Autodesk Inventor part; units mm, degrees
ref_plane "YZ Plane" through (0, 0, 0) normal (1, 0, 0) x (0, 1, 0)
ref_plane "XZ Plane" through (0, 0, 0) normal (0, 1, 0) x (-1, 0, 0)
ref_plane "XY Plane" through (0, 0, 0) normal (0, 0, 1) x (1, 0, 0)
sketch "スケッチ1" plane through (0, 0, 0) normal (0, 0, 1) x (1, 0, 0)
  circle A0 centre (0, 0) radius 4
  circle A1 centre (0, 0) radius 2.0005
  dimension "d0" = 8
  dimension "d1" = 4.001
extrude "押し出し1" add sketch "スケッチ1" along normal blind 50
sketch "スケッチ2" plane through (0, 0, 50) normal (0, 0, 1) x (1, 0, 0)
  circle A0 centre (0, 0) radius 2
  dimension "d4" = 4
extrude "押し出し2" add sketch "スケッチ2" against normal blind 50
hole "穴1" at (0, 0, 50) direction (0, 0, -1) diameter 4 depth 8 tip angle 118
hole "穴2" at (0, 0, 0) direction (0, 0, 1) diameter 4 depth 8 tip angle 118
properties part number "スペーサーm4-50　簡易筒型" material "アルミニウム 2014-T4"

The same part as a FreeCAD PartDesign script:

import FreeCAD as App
import Part
import Sketcher

V = App.Vector

doc = App.newDocument("Part")
body = doc.addObject("PartDesign::Body", "Body")
body.AllowCompound = True

sketch1 = doc.addObject("Sketcher::SketchObject", "Sketch")
body.addObject(sketch1)
sketch1.AttachmentSupport = (doc.XY_Plane, [""])
sketch1.MapMode = "FlatFace"
sketch1.addGeometry(Part.Circle(V(0, 0, 0), V(0, 0, 1), 4), False)
sketch1.addGeometry(Part.Circle(V(0, 0, 0), V(0, 0, 1), 2), False)
sketch1.addConstraint(Sketcher.Constraint("Coincident", 0, 3, -1, 1))
sketch1.addConstraint(Sketcher.Constraint("Coincident", 1, 3, -1, 1))
sketch1.addConstraint(Sketcher.Constraint("Diameter", 0, 8.0))
sketch1.addConstraint(Sketcher.Constraint("Diameter", 1, 4.001))
pad1 = doc.addObject("PartDesign::Pad", "Pad")
body.addObject(pad1)
pad1.Profile = sketch1
pad1.Length = 50

sketch2 = doc.addObject("Sketcher::SketchObject", "Sketch001")
body.addObject(sketch2)
sketch2.AttachmentSupport = (doc.XY_Plane, [""])
sketch2.MapMode = "FlatFace"
sketch2.AttachmentOffset = App.Placement(V(0, 0, 50), App.Rotation())
sketch2.addGeometry(Part.Circle(V(0, 0, 0), V(0, 0, 1), 2), False)
sketch2.addConstraint(Sketcher.Constraint("Coincident", 0, 3, -1, 1))
sketch2.addConstraint(Sketcher.Constraint("Diameter", 0, 4.0))
pad2 = doc.addObject("PartDesign::Pad", "Pad001")
body.addObject(pad2)
pad2.Profile = sketch2
pad2.Length = 50
pad2.Reversed = True

sketch3 = doc.addObject("Sketcher::SketchObject", "Sketch002")
body.addObject(sketch3)
sketch3.AttachmentSupport = (doc.XY_Plane, [""])
sketch3.MapMode = "FlatFace"
sketch3.AttachmentOffset = App.Placement(V(0, 0, 50), App.Rotation())
sketch3.addGeometry(Part.Circle(V(0, 0, 0), V(0, 0, 1), 2), False)
sketch3.addConstraint(Sketcher.Constraint("Coincident", 0, 3, -1, 1))
sketch3.addConstraint(Sketcher.Constraint("Diameter", 0, 4.0))
doc.recompute()
hole = doc.addObject("PartDesign::Hole", "Hole")
body.addObject(hole)
hole.Profile = sketch3
hole.ThreadType = "None"
hole.Diameter = 4
hole.DepthType = "Dimension"
hole.Depth = 8
hole.DrillPoint = "Angled"
hole.DrillPointAngle = 118

sketch4 = doc.addObject("Sketcher::SketchObject", "Sketch003")
body.addObject(sketch4)
sketch4.AttachmentSupport = (doc.XY_Plane, [""])
sketch4.MapMode = "FlatFace"
sketch4.addGeometry(Part.Circle(V(0, 0, 0), V(0, 0, 1), 2), False)
sketch4.addConstraint(Sketcher.Constraint("Coincident", 0, 3, -1, 1))
sketch4.addConstraint(Sketcher.Constraint("Diameter", 0, 4.0))
doc.recompute()
hole2 = doc.addObject("PartDesign::Hole", "Hole001")
body.addObject(hole2)
hole2.Profile = sketch4
hole2.ThreadType = "None"
hole2.Diameter = 4
hole2.DepthType = "Dimension"
hole2.Depth = 8
hole2.DrillPoint = "Angled"
hole2.DrillPointAngle = 118
hole2.Reversed = True

doc.recompute()
